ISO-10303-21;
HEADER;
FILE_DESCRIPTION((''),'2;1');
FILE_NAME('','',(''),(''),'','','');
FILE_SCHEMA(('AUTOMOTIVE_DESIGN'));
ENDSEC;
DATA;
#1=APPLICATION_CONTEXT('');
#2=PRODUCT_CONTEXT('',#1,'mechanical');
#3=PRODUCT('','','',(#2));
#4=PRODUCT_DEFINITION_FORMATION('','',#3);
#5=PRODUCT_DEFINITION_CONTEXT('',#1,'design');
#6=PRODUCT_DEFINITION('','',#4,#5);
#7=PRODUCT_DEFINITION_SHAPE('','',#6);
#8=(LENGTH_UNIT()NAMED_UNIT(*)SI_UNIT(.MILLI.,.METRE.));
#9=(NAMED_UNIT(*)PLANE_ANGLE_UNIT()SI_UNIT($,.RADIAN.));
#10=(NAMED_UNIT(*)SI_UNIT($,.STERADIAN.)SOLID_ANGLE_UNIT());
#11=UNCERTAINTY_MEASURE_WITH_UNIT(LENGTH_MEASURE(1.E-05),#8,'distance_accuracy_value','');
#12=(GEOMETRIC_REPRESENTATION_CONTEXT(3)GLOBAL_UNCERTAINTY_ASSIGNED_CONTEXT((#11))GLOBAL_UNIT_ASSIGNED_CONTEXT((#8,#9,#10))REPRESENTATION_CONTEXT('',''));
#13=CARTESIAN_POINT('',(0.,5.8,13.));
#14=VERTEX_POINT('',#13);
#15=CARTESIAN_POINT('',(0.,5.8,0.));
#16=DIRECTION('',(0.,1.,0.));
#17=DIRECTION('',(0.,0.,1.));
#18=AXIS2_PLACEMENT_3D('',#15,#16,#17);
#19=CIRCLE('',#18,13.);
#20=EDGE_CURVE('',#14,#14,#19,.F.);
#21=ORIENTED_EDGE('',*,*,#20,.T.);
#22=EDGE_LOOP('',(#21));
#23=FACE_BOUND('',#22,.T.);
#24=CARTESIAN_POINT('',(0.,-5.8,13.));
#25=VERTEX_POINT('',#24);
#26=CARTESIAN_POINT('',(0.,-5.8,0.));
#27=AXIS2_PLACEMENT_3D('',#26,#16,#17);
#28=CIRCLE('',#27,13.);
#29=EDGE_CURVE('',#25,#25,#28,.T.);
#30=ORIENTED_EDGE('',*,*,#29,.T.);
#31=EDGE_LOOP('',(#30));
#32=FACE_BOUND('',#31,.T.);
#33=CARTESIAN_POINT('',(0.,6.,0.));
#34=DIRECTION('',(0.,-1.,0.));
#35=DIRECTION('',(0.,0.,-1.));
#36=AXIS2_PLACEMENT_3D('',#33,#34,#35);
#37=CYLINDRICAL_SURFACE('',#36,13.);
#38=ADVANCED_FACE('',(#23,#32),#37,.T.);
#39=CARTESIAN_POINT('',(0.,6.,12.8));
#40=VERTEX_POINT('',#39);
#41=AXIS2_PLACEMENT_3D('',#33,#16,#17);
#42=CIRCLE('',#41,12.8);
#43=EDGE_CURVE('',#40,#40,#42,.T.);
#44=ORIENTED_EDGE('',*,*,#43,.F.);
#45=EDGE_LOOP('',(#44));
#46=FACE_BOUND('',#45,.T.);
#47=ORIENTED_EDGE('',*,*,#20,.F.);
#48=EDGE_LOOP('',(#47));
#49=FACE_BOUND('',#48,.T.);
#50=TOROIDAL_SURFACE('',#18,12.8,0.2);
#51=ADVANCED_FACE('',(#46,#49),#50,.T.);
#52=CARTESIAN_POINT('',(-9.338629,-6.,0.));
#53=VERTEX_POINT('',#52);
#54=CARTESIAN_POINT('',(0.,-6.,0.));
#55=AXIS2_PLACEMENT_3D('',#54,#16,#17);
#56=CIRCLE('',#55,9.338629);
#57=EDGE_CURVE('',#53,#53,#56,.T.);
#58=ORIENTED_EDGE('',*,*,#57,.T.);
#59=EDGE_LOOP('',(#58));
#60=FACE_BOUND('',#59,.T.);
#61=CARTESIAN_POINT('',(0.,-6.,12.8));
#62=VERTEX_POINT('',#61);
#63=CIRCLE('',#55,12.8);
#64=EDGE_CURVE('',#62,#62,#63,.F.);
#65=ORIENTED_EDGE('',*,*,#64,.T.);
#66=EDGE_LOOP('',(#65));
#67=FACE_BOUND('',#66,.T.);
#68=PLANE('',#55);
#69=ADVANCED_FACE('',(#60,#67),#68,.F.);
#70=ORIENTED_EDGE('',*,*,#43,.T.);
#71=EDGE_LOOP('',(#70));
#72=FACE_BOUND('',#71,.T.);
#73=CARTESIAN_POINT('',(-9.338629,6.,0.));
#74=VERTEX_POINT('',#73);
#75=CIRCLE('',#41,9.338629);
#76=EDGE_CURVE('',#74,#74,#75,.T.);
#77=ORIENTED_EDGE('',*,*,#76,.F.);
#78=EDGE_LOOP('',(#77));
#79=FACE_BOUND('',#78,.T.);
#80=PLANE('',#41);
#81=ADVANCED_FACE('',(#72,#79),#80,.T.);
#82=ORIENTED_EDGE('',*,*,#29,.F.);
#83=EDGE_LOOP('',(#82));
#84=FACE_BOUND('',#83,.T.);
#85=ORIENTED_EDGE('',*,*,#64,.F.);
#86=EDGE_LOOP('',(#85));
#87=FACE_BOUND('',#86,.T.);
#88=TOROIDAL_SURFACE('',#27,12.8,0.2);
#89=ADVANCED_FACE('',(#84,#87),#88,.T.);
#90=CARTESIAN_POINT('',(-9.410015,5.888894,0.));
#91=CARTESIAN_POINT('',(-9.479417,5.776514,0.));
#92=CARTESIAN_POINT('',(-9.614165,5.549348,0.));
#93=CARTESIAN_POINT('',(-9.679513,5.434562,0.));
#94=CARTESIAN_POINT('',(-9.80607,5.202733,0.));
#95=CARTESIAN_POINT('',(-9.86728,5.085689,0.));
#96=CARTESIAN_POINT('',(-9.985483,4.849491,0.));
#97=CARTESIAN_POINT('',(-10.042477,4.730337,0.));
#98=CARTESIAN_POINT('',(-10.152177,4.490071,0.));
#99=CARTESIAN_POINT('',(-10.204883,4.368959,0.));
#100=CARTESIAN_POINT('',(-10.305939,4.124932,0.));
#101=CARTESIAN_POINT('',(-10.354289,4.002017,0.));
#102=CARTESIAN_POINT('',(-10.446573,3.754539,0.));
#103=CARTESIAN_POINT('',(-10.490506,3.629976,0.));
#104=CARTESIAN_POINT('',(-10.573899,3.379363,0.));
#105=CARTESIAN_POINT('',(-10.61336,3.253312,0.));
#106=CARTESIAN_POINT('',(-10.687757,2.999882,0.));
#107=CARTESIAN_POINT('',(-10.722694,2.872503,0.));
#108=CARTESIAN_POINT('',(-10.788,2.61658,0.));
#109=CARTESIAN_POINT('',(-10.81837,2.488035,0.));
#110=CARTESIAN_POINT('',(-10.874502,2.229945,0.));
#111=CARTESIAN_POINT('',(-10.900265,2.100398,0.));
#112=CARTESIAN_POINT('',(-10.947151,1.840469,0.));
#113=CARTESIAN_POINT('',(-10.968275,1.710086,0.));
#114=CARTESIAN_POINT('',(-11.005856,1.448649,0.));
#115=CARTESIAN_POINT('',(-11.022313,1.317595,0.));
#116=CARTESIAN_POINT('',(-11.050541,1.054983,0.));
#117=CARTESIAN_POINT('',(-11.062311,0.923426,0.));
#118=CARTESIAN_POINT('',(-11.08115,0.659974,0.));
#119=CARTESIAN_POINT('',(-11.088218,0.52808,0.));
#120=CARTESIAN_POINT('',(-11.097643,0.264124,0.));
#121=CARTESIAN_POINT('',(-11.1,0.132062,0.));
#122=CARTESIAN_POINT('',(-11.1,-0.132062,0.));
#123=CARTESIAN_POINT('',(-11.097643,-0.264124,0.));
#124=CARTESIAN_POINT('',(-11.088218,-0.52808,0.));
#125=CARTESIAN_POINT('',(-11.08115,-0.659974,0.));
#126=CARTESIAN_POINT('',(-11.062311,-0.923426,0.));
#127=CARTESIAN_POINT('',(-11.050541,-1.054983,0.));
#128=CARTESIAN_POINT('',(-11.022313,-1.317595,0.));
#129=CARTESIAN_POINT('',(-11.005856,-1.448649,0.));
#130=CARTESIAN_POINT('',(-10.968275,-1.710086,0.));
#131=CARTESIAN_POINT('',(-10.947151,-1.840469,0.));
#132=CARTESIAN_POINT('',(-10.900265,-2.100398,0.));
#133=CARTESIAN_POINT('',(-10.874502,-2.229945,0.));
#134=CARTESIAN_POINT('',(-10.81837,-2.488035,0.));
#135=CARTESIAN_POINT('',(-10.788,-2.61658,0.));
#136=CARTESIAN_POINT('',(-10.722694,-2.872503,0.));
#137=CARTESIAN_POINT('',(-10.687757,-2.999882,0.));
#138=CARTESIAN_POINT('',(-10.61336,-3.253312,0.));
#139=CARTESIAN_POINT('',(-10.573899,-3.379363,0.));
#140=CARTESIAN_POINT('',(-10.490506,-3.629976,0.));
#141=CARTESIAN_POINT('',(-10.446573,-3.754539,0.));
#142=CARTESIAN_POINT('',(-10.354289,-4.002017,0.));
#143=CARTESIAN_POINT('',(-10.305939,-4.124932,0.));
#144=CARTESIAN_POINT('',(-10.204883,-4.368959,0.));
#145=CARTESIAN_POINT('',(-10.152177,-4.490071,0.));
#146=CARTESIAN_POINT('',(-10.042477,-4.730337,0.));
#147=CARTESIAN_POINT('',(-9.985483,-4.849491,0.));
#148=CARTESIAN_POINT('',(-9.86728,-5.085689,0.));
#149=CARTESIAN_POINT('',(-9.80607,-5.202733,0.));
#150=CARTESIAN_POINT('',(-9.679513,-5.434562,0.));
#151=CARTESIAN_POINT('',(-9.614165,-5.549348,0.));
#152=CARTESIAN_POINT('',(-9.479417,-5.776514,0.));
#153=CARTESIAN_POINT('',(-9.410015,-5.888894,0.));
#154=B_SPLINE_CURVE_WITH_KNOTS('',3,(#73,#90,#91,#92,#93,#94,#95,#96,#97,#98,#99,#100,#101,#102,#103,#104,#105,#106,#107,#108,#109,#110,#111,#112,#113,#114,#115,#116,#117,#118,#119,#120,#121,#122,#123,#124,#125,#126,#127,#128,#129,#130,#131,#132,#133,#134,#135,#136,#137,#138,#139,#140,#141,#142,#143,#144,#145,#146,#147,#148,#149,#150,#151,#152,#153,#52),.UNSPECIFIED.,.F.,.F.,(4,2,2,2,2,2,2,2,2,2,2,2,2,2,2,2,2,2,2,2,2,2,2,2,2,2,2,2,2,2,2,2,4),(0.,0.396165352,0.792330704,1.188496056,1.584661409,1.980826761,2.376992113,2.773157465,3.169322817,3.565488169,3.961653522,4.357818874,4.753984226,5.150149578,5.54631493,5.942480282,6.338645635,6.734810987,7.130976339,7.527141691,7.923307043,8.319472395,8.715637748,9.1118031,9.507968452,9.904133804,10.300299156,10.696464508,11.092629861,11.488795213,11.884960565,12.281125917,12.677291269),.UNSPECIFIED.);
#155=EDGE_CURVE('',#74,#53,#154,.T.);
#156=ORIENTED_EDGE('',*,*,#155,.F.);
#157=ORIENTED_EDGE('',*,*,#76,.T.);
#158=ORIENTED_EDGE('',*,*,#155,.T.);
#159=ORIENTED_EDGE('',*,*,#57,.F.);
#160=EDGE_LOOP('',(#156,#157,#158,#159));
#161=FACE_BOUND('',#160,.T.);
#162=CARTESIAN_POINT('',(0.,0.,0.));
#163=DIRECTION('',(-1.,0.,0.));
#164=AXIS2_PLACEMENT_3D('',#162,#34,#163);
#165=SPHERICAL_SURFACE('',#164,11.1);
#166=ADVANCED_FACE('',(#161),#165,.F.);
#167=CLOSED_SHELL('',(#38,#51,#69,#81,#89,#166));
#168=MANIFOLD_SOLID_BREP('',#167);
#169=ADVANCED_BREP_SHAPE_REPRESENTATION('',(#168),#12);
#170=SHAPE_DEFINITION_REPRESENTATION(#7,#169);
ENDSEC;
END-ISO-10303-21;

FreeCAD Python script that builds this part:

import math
import FreeCAD as App
import Part
import Sketcher


def edges_at(feature, points):
    """Names of the edges that pass closest to the given points."""
    edges = feature.Shape.Edges
    near = lambda p: min(range(len(edges)), key=lambda i: edges[i].distToShape(Part.Vertex(*p))[0])
    return sorted({f"Edge{near(p) + 1}" for p in points})

doc = App.newDocument("Part")
body = doc.addObject("PartDesign::Body", "Body")

# Sketch on XZ plane
sketch1 = body.newObject("Sketcher::SketchObject", "Sketch")
sketch1.AttachmentSupport = (doc.getObject("XZ_Plane"), [""])
sketch1.MapMode = "FlatFace"
sketch1.addGeometry(Part.Circle(App.Vector(0, 0, 0), App.Vector(0, 0, 1), 13), False)
sketch1.addConstraint([
    Sketcher.Constraint("Coincident", 0, 3, -1, 1),
    Sketcher.Constraint("Diameter", 0, 26.0),
])
pad1 = body.newObject("PartDesign::Pad", "Pad")
pad1.Profile = sketch1
pad1.Length = 12
pad1.Midplane = True

# Sketch on XY plane
sketch2 = body.newObject("Sketcher::SketchObject", "Sketch001")
sketch2.AttachmentSupport = (doc.getObject("XY_Plane"), [""])
sketch2.MapMode = "FlatFace"
sketch2.addGeometry([
    Part.LineSegment(App.Vector(0, 11, 0), App.Vector(0, -11, 0)),
    Part.ArcOfCircle(Part.Circle(App.Vector(0, 0, 0), App.Vector(0, 0, 1), 11), math.radians(-90), math.radians(90)),
], False)
sketch2.addConstraint([
    Sketcher.Constraint("Coincident", 0, 1, 1, 2),
    Sketcher.Constraint("Coincident", 1, 1, 0, 2),
    Sketcher.Constraint("Vertical", 0),
    Sketcher.Constraint("Coincident", 1, 3, -1, 1),
    Sketcher.Constraint("PointOnObject", 0, 1, -2),
    Sketcher.Constraint("Radius", 1, 11.1),
])
groove = body.newObject("PartDesign::Groove", "Groove")
groove.Profile = sketch2
groove.ReferenceAxis = (sketch2, ["V_Axis"])
groove.Angle = 360
doc.recompute()

fillet = body.newObject("PartDesign::Fillet", "Fillet")
fillet.Base = (groove, edges_at(groove, [(0, -6, -13), (0, 6, -13)]))
fillet.Radius = 0.2

doc.recompute()
